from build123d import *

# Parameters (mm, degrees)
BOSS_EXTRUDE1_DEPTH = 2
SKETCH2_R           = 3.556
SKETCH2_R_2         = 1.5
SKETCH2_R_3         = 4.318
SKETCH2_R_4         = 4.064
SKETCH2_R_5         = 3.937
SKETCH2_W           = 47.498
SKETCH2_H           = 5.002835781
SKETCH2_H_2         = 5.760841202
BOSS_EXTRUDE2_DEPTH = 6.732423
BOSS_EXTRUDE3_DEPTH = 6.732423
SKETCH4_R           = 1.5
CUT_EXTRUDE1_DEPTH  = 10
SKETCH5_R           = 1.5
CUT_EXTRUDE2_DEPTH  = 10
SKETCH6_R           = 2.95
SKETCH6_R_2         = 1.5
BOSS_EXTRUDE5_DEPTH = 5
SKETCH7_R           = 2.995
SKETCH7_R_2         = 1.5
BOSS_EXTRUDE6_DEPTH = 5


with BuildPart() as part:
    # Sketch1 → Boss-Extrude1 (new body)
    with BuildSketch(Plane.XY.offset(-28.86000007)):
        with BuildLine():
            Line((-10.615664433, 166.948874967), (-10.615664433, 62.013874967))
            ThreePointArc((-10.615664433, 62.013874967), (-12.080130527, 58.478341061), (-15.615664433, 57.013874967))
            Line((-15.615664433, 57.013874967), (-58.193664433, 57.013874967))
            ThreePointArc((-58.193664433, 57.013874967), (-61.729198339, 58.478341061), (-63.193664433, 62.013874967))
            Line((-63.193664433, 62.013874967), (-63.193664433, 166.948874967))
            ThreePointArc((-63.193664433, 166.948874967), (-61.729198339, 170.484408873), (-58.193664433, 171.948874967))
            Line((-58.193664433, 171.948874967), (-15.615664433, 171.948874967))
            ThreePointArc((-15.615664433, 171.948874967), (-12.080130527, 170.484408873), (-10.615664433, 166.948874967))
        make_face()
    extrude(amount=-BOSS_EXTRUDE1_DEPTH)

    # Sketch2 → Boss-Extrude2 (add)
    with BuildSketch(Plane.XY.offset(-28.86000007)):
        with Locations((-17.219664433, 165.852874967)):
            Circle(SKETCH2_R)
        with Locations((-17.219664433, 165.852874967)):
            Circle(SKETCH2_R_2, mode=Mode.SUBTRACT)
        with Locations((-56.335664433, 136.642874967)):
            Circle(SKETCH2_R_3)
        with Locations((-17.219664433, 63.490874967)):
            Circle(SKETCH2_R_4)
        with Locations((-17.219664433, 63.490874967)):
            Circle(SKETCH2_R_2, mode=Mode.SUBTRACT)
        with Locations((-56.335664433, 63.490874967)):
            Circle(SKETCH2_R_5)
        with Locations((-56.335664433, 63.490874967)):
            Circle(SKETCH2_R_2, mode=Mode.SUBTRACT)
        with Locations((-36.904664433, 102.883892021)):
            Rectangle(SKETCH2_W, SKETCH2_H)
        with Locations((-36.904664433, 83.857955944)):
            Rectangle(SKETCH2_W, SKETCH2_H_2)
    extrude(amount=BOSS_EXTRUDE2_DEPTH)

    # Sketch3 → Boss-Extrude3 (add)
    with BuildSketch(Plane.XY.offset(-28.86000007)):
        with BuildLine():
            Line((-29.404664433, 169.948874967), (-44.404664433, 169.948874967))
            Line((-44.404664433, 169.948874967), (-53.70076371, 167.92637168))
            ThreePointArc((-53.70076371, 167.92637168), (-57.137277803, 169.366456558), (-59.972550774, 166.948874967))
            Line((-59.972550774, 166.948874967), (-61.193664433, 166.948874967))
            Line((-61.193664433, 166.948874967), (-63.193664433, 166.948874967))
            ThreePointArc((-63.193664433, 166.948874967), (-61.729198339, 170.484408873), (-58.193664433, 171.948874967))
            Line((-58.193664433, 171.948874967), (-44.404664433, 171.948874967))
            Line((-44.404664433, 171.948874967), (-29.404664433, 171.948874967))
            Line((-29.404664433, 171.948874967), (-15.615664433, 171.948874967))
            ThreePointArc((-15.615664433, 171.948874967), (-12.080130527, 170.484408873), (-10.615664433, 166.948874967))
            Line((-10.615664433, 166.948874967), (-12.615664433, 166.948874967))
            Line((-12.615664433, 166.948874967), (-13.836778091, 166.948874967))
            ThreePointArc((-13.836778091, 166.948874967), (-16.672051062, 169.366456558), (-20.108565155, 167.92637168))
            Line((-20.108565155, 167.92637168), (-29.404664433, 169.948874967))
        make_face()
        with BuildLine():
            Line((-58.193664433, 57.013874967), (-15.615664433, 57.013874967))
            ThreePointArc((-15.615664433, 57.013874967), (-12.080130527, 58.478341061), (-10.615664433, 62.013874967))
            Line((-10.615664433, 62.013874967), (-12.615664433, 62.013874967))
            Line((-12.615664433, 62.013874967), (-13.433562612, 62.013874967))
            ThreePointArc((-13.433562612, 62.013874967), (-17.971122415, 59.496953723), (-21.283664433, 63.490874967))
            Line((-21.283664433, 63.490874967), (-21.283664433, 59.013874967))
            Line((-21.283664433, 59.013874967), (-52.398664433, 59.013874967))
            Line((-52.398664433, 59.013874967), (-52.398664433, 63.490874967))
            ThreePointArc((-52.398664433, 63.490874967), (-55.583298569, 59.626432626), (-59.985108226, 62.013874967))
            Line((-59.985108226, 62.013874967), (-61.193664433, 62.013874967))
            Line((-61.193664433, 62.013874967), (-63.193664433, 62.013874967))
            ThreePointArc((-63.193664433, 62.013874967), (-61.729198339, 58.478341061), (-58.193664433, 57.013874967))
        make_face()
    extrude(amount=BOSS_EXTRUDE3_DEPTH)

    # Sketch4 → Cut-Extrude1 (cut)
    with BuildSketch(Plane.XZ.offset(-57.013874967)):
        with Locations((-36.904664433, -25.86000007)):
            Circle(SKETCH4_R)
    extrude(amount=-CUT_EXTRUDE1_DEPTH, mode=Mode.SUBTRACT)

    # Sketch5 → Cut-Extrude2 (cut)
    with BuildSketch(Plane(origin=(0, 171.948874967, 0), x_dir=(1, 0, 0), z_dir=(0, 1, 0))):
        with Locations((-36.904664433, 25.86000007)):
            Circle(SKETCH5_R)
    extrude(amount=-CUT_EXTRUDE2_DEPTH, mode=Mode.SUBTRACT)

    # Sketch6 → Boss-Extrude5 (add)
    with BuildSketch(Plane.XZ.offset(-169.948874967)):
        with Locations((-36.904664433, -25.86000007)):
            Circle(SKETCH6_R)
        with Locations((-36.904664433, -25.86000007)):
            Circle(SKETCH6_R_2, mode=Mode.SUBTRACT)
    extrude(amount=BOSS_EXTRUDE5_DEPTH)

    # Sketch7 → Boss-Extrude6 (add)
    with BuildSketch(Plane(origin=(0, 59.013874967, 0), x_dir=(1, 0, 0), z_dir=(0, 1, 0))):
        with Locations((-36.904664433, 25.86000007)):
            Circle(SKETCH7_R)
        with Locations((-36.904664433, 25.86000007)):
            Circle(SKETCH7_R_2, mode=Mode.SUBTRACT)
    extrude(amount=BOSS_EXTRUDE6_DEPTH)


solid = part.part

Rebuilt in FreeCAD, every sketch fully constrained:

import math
import FreeCAD as App
import Part
import Sketcher

V = App.Vector

doc = App.newDocument("Part")
body = doc.addObject("PartDesign::Body", "Body")

# Sketch on XY plane
sketch1 = body.newObject("Sketcher::SketchObject", "Sketch")
sketch1.AttachmentSupport = (doc.getObject("XY_Plane"), [""])
sketch1.MapMode = "FlatFace"
sketch1.AttachmentOffset = App.Placement(V(0, 0, -28.86), App.Rotation())
sketch1.addGeometry([
    Part.LineSegment(V(-11, 62, 0), V(-11, 167, 0)),  # 0
    Part.ArcOfCircle(Part.Circle(V(-16, 167, 0), V(0, 0, 1), 5), math.radians(0), math.radians(90)),  # 1
    Part.LineSegment(V(-16, 172, 0), V(-58, 172, 0)),  # 2
    Part.ArcOfCircle(Part.Circle(V(-58, 167, 0), V(0, 0, 1), 5), math.radians(90), math.radians(180)),  # 3
    Part.LineSegment(V(-63, 167, 0), V(-63, 62, 0)),  # 4
    Part.ArcOfCircle(Part.Circle(V(-58, 62, 0), V(0, 0, 1), 5), math.radians(180), math.radians(270)),  # 5
    Part.LineSegment(V(-58, 57, 0), V(-16, 57, 0)),  # 6
    Part.ArcOfCircle(Part.Circle(V(-16, 62, 0), V(0, 0, 1), 5), math.radians(-90), math.radians(0)),  # 7
], False)
sketch1.addConstraint([
    Sketcher.Constraint("Tangent", 0, 2, 1, 1),
    Sketcher.Constraint("Tangent", 1, 2, 2, 1),
    Sketcher.Constraint("Tangent", 2, 2, 3, 1),
    Sketcher.Constraint("Tangent", 3, 2, 4, 1),
    Sketcher.Constraint("Tangent", 4, 2, 5, 1),
    Sketcher.Constraint("Tangent", 5, 2, 6, 1),
    Sketcher.Constraint("Tangent", 6, 2, 7, 1),
    Sketcher.Constraint("Tangent", 7, 2, 0, 1),
    Sketcher.Constraint("Vertical", 0),
    Sketcher.Constraint("Horizontal", 2),
    Sketcher.Constraint("Vertical", 4),
    Sketcher.Constraint("Horizontal", 6),
    Sketcher.Constraint("Equal", 1, 3),
    Sketcher.Constraint("Equal", 3, 5),
    Sketcher.Constraint("Equal", 5, 7),
    Sketcher.Constraint("Radius", 1, 5.0),
    Sketcher.Constraint("DistanceX", 2, 2, 2, 1, 42.578),
    Sketcher.Constraint("DistanceY", 0, 1, 0, 2, 104.935),
    Sketcher.Constraint("DistanceX", 1, 3, -1, 1, 15.615664),
    Sketcher.Constraint("DistanceY", -1, 1, 1, 3, 166.948875),
])
pad1 = body.newObject("PartDesign::Pad", "Pad")
pad1.Profile = sketch1
pad1.Length = 2
pad1.Reversed = True

# Sketch on XY plane
sketch2 = body.newObject("Sketcher::SketchObject", "Sketch001")
sketch2.AttachmentSupport = (doc.getObject("XY_Plane"), [""])
sketch2.MapMode = "FlatFace"
sketch2.AttachmentOffset = App.Placement(V(0, 0, -28.86), App.Rotation())
sketch2.addGeometry([
    Part.Circle(V(-17.2, 165.9, 0), V(0, 0, 1), 3.6),  # 0
    Part.Circle(V(-17.2, 165.9, 0), V(0, 0, 1), 1.5),  # 1
    Part.Circle(V(-56.3, 136.6, 0), V(0, 0, 1), 4.3),  # 2
    Part.Circle(V(-17.2, 63.5, 0), V(0, 0, 1), 4.1),  # 3
    Part.Circle(V(-17.2, 63.5, 0), V(0, 0, 1), 1.5),  # 4
    Part.Circle(V(-56.3, 63.5, 0), V(0, 0, 1), 3.9),  # 5
    Part.Circle(V(-56.3, 63.5, 0), V(0, 0, 1), 1.5),  # 6
    Part.LineSegment(V(-60.7, 105.4, 0), V(-60.7, 100.4, 0)),  # 7
    Part.LineSegment(V(-60.7, 100.4, 0), V(-13.2, 100.4, 0)),  # 8
    Part.LineSegment(V(-13.2, 100.4, 0), V(-13.2, 105.4, 0)),  # 9
    Part.LineSegment(V(-13.2, 105.4, 0), V(-60.7, 105.4, 0)),  # 10
    Part.LineSegment(V(-60.7, 86.7, 0), V(-60.7, 81, 0)),  # 11
    Part.LineSegment(V(-60.7, 81, 0), V(-13.2, 81, 0)),  # 12
    Part.LineSegment(V(-13.2, 81, 0), V(-13.2, 86.7, 0)),  # 13
    Part.LineSegment(V(-13.2, 86.7, 0), V(-60.7, 86.7, 0)),  # 14
], False)
sketch2.addConstraint([
    Sketcher.Constraint("Coincident", 7, 2, 8, 1),
    Sketcher.Constraint("Coincident", 8, 2, 9, 1),
    Sketcher.Constraint("Coincident", 9, 2, 10, 1),
    Sketcher.Constraint("Coincident", 10, 2, 7, 1),
    Sketcher.Constraint("Coincident", 11, 2, 12, 1),
    Sketcher.Constraint("Coincident", 12, 2, 13, 1),
    Sketcher.Constraint("Coincident", 13, 2, 14, 1),
    Sketcher.Constraint("Coincident", 14, 2, 11, 1),
    Sketcher.Constraint("Vertical", 7),
    Sketcher.Constraint("Horizontal", 8),
    Sketcher.Constraint("Vertical", 9),
    Sketcher.Constraint("Horizontal", 10),
    Sketcher.Constraint("Vertical", 11),
    Sketcher.Constraint("Horizontal", 12),
    Sketcher.Constraint("Vertical", 13),
    Sketcher.Constraint("Horizontal", 14),
    Sketcher.Constraint("Coincident", 1, 3, 0, 3),
    Sketcher.Constraint("Coincident", 4, 3, 3, 3),
    Sketcher.Constraint("Coincident", 6, 3, 5, 3),
    Sketcher.Constraint("Equal", 1, 4),
    Sketcher.Constraint("Equal", 4, 6),
    Sketcher.Constraint("Horizontal", 4, 3, 5, 3),
    Sketcher.Constraint("Vertical", 1, 3, 3, 3),
    Sketcher.Constraint("Vertical", 2, 3, 5, 3),
    Sketcher.Constraint("Vertical", 10, 2, 11, 2),
    Sketcher.Constraint("Vertical", 9, 2, 12, 2),
    Sketcher.Constraint("Diameter", 1, 3.0),
    Sketcher.Constraint("Diameter", 0, 7.112),
    Sketcher.Constraint("Diameter", 2, 8.636),
    Sketcher.Constraint("Diameter", 3, 8.128),
    Sketcher.Constraint("Diameter", 5, 7.874),
    Sketcher.Constraint("DistanceX", 8, 1, 8, 2, 47.498),
    Sketcher.Constraint("DistanceY", 2, 3, 0, 3, 29.21),
    Sketcher.Constraint("DistanceX", 2, 3, 8, 2, 43.18),
    Sketcher.Constraint("DistanceX", 2, 3, 0, 3, 39.116),
    Sketcher.Constraint("DistanceY", 3, 3, 2, 3, 73.152),
    Sketcher.Constraint("DistanceY", 11, 2, 11, 1, 5.760841),
    Sketcher.Constraint("DistanceY", 7, 2, 2, 3, 36.260401),
    Sketcher.Constraint("DistanceY", 3, 3, 13, 2, 23.247502),
    Sketcher.Constraint("DistanceY", 7, 2, 7, 1, 5.002836),
    Sketcher.Constraint("DistanceY", -1, 1, 9, 2, 105.38531),
    Sketcher.Constraint("DistanceX", 0, 3, -1, 1, 17.219664),
])
pad2 = body.newObject("PartDesign::Pad", "Pad001")
pad2.Profile = sketch2
pad2.Length = 6.732423

# Sketch on XY plane
sketch3 = body.newObject("Sketcher::SketchObject", "Sketch002")
sketch3.AttachmentSupport = (doc.getObject("XY_Plane"), [""])
sketch3.MapMode = "FlatFace"
sketch3.AttachmentOffset = App.Placement(V(0, 0, -28.86), App.Rotation())
sketch3.addGeometry([
    Part.LineSegment(V(-44.4, 169.9, 0), V(-29.4, 169.9, 0)),  # 0
    Part.LineSegment(V(-29.4, 169.9, 0), V(-20.1, 167.9, 0)),  # 1
    Part.ArcOfCircle(Part.Circle(V(-17.2, 165.9, 0), V(0, 0, 1), 3.6), math.radians(18), math.radians(144)),  # 2
    Part.LineSegment(V(-13.8, 166.9, 0), V(-10.6, 166.9, 0)),  # 3
    Part.ArcOfCircle(Part.Circle(V(-15.6, 166.9, 0), V(0, 0, 1), 5), math.radians(0), math.radians(90)),  # 4
    Part.LineSegment(V(-15.6, 171.9, 0), V(-58.2, 171.9, 0)),  # 5
    Part.ArcOfCircle(Part.Circle(V(-58.2, 166.9, 0), V(0, 0, 1), 5), math.radians(90), math.radians(180)),  # 6
    Part.LineSegment(V(-63.2, 166.9, 0), V(-60, 166.9, 0)),  # 7
    Part.ArcOfCircle(Part.Circle(V(-56.6, 165.9, 0), V(0, 0, 1), 3.6), math.radians(36), math.radians(162)),  # 8
    Part.LineSegment(V(-53.7, 167.9, 0), V(-44.4, 169.9, 0)),  # 9
    Part.LineSegment(V(-58.2, 57, 0), V(-15.6, 57, 0)),  # 10
    Part.ArcOfCircle(Part.Circle(V(-15.6, 62, 0), V(0, 0, 1), 5), math.radians(-90), math.radians(0)),  # 11
    Part.LineSegment(V(-10.6, 62, 0), V(-13.4, 62, 0)),  # 12
    Part.ArcOfCircle(Part.Circle(V(-17.2, 63.5, 0), V(0, 0, 1), 4.1), math.radians(180), math.radians(339)),  # 13
    Part.LineSegment(V(-21.3, 63.5, 0), V(-21.3, 59, 0)),  # 14
    Part.LineSegment(V(-21.3, 59, 0), V(-52.4, 59, 0)),  # 15
    Part.LineSegment(V(-52.4, 59, 0), V(-52.4, 63.5, 0)),  # 16
    Part.ArcOfCircle(Part.Circle(V(-56.3, 63.5, 0), V(0, 0, 1), 3.9), math.radians(-158), math.radians(0)),  # 17
    Part.LineSegment(V(-60, 62, 0), V(-63.2, 62, 0)),  # 18
    Part.ArcOfCircle(Part.Circle(V(-58.2, 62, 0), V(0, 0, 1), 5), math.radians(180), math.radians(270)),  # 19
], False)
sketch3.addConstraint([
    Sketcher.Constraint("Coincident", 0, 2, 1, 1),
    Sketcher.Constraint("Coincident", 1, 2, 2, 2),
    Sketcher.Constraint("Coincident", 2, 1, 3, 1),
    Sketcher.Constraint("Coincident", 3, 2, 4, 1),
    Sketcher.Constraint("Tangent", 4, 2, 5, 1),
    Sketcher.Constraint("Tangent", 5, 2, 6, 1),
    Sketcher.Constraint("Coincident", 6, 2, 7, 1),
    Sketcher.Constraint("Coincident", 7, 2, 8, 2),
    Sketcher.Constraint("Coincident", 8, 1, 9, 1),
    Sketcher.Constraint("Coincident", 9, 2, 0, 1),
    Sketcher.Constraint("Tangent", 10, 2, 11, 1),
    Sketcher.Constraint("Coincident", 11, 2, 12, 1),
    Sketcher.Constraint("Coincident", 12, 2, 13, 2),
    Sketcher.Constraint("Tangent", 13, 1, 14, 1),
    Sketcher.Constraint("Coincident", 14, 2, 15, 1),
    Sketcher.Constraint("Coincident", 15, 2, 16, 1),
    Sketcher.Constraint("Tangent", 16, 2, 17, 2),
    Sketcher.Constraint("Coincident", 17, 1, 18, 1),
    Sketcher.Constraint("Coincident", 18, 2, 19, 1),
    Sketcher.Constraint("Tangent", 19, 2, 10, 1),
    Sketcher.Constraint("Horizontal", 0),
    Sketcher.Constraint("Horizontal", 3),
    Sketcher.Constraint("Horizontal", 5),
    Sketcher.Constraint("Horizontal", 7),
    Sketcher.Constraint("Horizontal", 10),
    Sketcher.Constraint("Horizontal", 12),
    Sketcher.Constraint("Vertical", 14),
    Sketcher.Constraint("Horizontal", 15),
    Sketcher.Constraint("Vertical", 16),
    Sketcher.Constraint("Horizontal", 18),
    Sketcher.Constraint("Equal", 4, 6),
    Sketcher.Constraint("Equal", 2, 8),
    Sketcher.Constraint("Equal", 6, 11),
    Sketcher.Constraint("Equal", 11, 19),
    Sketcher.Constraint("Horizontal", 2, 3, 8, 3),
    Sketcher.Constraint("Horizontal", 13, 3, 17, 3),
    Sketcher.Constraint("Horizontal", 6, 3, 2, 1),
    Sketcher.Constraint("Horizontal", 3, 2, 6, 2),
    Sketcher.Constraint("Horizontal", 1, 2, 8, 1),
    Sketcher.Constraint("Horizontal", 19, 3, 11, 2),
    Sketcher.Constraint("Horizontal", 12, 2, 17, 1),
    Sketcher.Constraint("Vertical", 4, 3, 11, 3),
    Sketcher.Constraint("Vertical", 2, 3, 13, 3),
    Sketcher.Constraint("Vertical", 6, 3, 19, 3),
    Sketcher.Constraint("Equal", 3, 7),
    Sketcher.Constraint("Equal", 1, 9),
    Sketcher.Constraint("Radius", 4, 5.0),
    Sketcher.Constraint("DistanceX", 0, 1, 0, 2, 15.0),
    Sketcher.Constraint("Radius", 2, 3.556),
    Sketcher.Constraint("Radius", 13, 4.064),
    Sketcher.Constraint("Radius", 17, 3.937),
    Sketcher.Constraint("DistanceY", 4, 3, 0, 2, 3.0),
    Sketcher.Constraint("DistanceY", 10, 2, 14, 2, 2.0),
    Sketcher.Constraint("DistanceX", 5, 2, 5, 1, 42.578),
    Sketcher.Constraint("DistanceX", 15, 2, 15, 1, 31.115),
    Sketcher.Constraint("DistanceY", 14, 2, 14, 1, 4.477),
    Sketcher.Constraint("DistanceX", 8, 3, 2, 3, 39.37),
    Sketcher.Constraint("DistanceY", 2, 3, 4, 3, 1.096),
    Sketcher.Constraint("DistanceY", 11, 3, 2, 3, 103.839),
    Sketcher.Constraint("DistanceX", 1, 2, 2, 3, 2.888901),
    Sketcher.Constraint("DistanceY", -1, 1, 1, 2, 167.926372),
    Sketcher.Constraint("DistanceX", 2, 1, -1, 1, 13.836778),
])
pad3 = body.newObject("PartDesign::Pad", "Pad002")
pad3.Profile = sketch3
pad3.Length = 6.732423

# Sketch on XZ plane
sketch4 = body.newObject("Sketcher::SketchObject", "Sketch003")
sketch4.AttachmentSupport = (doc.getObject("XZ_Plane"), [""])
sketch4.MapMode = "FlatFace"
sketch4.AttachmentOffset = App.Placement(V(0, 0, -57.013875), App.Rotation())
sketch4.addGeometry(Part.Circle(V(-36.9, -25.9, 0), V(0, 0, 1), 1.5), False)
sketch4.addConstraint([
    Sketcher.Constraint("Diameter", 0, 3.0),
    Sketcher.Constraint("DistanceY", 0, 3, -1, 1, 25.86),
    Sketcher.Constraint("DistanceX", 0, 3, -1, 1, 36.904664),
])
pocket1 = body.newObject("PartDesign::Pocket", "Pocket")
pocket1.Profile = sketch4
pocket1.Length = 10

# Sketch on XZ plane
sketch5 = body.newObject("Sketcher::SketchObject", "Sketch004")
sketch5.AttachmentSupport = (doc.getObject("XZ_Plane"), [""])
sketch5.MapMode = "FlatFace"
sketch5.AttachmentOffset = App.Placement(V(0, 0, -171.948875), App.Rotation())
sketch5.addGeometry(Part.Circle(V(-36.9, -25.9, 0), V(0, 0, 1), 1.5), False)
sketch5.addConstraint([
    Sketcher.Constraint("Diameter", 0, 3.0),
    Sketcher.Constraint("DistanceY", 0, 3, -1, 1, 25.86),
    Sketcher.Constraint("DistanceX", 0, 3, -1, 1, 36.904664),
])
pocket2 = body.newObject("PartDesign::Pocket", "Pocket001")
pocket2.Profile = sketch5
pocket2.Length = 10
pocket2.Reversed = True

# Sketch on XZ plane
sketch6 = body.newObject("Sketcher::SketchObject", "Sketch005")
sketch6.AttachmentSupport = (doc.getObject("XZ_Plane"), [""])
sketch6.MapMode = "FlatFace"
sketch6.AttachmentOffset = App.Placement(V(0, 0, -169.948875), App.Rotation())
sketch6.addGeometry([
    Part.Circle(V(-36.9, -25.9, 0), V(0, 0, 1), 3),
    Part.Circle(V(-36.9, -25.9, 0), V(0, 0, 1), 1.5),
], False)
sketch6.addConstraint([
    Sketcher.Constraint("Coincident", 1, 3, 0, 3),
    Sketcher.Constraint("Diameter", 1, 3.0),
    Sketcher.Constraint("Diameter", 0, 5.9),
    Sketcher.Constraint("DistanceY", 0, 3, -1, 1, 25.86),
    Sketcher.Constraint("DistanceX", 0, 3, -1, 1, 36.904664),
])
pad4 = body.newObject("PartDesign::Pad", "Pad003")
pad4.Profile = sketch6
pad4.Length = 5

# Sketch on XZ plane
sketch7 = body.newObject("Sketcher::SketchObject", "Sketch006")
sketch7.AttachmentSupport = (doc.getObject("XZ_Plane"), [""])
sketch7.MapMode = "FlatFace"
sketch7.AttachmentOffset = App.Placement(V(0, 0, -59.013875), App.Rotation())
sketch7.addGeometry([
    Part.Circle(V(-36.9, -25.9, 0), V(0, 0, 1), 3),
    Part.Circle(V(-36.9, -25.9, 0), V(0, 0, 1), 1.5),
], False)
sketch7.addConstraint([
    Sketcher.Constraint("Coincident", 1, 3, 0, 3),
    Sketcher.Constraint("Diameter", 1, 3.0),
    Sketcher.Constraint("Diameter", 0, 5.99),
    Sketcher.Constraint("DistanceY", 0, 3, -1, 1, 25.86),
    Sketcher.Constraint("DistanceX", 0, 3, -1, 1, 36.904664),
])
pad5 = body.newObject("PartDesign::Pad", "Pad004")
pad5.Profile = sketch7
pad5.Length = 5
pad5.Reversed = True

doc.recompute()
